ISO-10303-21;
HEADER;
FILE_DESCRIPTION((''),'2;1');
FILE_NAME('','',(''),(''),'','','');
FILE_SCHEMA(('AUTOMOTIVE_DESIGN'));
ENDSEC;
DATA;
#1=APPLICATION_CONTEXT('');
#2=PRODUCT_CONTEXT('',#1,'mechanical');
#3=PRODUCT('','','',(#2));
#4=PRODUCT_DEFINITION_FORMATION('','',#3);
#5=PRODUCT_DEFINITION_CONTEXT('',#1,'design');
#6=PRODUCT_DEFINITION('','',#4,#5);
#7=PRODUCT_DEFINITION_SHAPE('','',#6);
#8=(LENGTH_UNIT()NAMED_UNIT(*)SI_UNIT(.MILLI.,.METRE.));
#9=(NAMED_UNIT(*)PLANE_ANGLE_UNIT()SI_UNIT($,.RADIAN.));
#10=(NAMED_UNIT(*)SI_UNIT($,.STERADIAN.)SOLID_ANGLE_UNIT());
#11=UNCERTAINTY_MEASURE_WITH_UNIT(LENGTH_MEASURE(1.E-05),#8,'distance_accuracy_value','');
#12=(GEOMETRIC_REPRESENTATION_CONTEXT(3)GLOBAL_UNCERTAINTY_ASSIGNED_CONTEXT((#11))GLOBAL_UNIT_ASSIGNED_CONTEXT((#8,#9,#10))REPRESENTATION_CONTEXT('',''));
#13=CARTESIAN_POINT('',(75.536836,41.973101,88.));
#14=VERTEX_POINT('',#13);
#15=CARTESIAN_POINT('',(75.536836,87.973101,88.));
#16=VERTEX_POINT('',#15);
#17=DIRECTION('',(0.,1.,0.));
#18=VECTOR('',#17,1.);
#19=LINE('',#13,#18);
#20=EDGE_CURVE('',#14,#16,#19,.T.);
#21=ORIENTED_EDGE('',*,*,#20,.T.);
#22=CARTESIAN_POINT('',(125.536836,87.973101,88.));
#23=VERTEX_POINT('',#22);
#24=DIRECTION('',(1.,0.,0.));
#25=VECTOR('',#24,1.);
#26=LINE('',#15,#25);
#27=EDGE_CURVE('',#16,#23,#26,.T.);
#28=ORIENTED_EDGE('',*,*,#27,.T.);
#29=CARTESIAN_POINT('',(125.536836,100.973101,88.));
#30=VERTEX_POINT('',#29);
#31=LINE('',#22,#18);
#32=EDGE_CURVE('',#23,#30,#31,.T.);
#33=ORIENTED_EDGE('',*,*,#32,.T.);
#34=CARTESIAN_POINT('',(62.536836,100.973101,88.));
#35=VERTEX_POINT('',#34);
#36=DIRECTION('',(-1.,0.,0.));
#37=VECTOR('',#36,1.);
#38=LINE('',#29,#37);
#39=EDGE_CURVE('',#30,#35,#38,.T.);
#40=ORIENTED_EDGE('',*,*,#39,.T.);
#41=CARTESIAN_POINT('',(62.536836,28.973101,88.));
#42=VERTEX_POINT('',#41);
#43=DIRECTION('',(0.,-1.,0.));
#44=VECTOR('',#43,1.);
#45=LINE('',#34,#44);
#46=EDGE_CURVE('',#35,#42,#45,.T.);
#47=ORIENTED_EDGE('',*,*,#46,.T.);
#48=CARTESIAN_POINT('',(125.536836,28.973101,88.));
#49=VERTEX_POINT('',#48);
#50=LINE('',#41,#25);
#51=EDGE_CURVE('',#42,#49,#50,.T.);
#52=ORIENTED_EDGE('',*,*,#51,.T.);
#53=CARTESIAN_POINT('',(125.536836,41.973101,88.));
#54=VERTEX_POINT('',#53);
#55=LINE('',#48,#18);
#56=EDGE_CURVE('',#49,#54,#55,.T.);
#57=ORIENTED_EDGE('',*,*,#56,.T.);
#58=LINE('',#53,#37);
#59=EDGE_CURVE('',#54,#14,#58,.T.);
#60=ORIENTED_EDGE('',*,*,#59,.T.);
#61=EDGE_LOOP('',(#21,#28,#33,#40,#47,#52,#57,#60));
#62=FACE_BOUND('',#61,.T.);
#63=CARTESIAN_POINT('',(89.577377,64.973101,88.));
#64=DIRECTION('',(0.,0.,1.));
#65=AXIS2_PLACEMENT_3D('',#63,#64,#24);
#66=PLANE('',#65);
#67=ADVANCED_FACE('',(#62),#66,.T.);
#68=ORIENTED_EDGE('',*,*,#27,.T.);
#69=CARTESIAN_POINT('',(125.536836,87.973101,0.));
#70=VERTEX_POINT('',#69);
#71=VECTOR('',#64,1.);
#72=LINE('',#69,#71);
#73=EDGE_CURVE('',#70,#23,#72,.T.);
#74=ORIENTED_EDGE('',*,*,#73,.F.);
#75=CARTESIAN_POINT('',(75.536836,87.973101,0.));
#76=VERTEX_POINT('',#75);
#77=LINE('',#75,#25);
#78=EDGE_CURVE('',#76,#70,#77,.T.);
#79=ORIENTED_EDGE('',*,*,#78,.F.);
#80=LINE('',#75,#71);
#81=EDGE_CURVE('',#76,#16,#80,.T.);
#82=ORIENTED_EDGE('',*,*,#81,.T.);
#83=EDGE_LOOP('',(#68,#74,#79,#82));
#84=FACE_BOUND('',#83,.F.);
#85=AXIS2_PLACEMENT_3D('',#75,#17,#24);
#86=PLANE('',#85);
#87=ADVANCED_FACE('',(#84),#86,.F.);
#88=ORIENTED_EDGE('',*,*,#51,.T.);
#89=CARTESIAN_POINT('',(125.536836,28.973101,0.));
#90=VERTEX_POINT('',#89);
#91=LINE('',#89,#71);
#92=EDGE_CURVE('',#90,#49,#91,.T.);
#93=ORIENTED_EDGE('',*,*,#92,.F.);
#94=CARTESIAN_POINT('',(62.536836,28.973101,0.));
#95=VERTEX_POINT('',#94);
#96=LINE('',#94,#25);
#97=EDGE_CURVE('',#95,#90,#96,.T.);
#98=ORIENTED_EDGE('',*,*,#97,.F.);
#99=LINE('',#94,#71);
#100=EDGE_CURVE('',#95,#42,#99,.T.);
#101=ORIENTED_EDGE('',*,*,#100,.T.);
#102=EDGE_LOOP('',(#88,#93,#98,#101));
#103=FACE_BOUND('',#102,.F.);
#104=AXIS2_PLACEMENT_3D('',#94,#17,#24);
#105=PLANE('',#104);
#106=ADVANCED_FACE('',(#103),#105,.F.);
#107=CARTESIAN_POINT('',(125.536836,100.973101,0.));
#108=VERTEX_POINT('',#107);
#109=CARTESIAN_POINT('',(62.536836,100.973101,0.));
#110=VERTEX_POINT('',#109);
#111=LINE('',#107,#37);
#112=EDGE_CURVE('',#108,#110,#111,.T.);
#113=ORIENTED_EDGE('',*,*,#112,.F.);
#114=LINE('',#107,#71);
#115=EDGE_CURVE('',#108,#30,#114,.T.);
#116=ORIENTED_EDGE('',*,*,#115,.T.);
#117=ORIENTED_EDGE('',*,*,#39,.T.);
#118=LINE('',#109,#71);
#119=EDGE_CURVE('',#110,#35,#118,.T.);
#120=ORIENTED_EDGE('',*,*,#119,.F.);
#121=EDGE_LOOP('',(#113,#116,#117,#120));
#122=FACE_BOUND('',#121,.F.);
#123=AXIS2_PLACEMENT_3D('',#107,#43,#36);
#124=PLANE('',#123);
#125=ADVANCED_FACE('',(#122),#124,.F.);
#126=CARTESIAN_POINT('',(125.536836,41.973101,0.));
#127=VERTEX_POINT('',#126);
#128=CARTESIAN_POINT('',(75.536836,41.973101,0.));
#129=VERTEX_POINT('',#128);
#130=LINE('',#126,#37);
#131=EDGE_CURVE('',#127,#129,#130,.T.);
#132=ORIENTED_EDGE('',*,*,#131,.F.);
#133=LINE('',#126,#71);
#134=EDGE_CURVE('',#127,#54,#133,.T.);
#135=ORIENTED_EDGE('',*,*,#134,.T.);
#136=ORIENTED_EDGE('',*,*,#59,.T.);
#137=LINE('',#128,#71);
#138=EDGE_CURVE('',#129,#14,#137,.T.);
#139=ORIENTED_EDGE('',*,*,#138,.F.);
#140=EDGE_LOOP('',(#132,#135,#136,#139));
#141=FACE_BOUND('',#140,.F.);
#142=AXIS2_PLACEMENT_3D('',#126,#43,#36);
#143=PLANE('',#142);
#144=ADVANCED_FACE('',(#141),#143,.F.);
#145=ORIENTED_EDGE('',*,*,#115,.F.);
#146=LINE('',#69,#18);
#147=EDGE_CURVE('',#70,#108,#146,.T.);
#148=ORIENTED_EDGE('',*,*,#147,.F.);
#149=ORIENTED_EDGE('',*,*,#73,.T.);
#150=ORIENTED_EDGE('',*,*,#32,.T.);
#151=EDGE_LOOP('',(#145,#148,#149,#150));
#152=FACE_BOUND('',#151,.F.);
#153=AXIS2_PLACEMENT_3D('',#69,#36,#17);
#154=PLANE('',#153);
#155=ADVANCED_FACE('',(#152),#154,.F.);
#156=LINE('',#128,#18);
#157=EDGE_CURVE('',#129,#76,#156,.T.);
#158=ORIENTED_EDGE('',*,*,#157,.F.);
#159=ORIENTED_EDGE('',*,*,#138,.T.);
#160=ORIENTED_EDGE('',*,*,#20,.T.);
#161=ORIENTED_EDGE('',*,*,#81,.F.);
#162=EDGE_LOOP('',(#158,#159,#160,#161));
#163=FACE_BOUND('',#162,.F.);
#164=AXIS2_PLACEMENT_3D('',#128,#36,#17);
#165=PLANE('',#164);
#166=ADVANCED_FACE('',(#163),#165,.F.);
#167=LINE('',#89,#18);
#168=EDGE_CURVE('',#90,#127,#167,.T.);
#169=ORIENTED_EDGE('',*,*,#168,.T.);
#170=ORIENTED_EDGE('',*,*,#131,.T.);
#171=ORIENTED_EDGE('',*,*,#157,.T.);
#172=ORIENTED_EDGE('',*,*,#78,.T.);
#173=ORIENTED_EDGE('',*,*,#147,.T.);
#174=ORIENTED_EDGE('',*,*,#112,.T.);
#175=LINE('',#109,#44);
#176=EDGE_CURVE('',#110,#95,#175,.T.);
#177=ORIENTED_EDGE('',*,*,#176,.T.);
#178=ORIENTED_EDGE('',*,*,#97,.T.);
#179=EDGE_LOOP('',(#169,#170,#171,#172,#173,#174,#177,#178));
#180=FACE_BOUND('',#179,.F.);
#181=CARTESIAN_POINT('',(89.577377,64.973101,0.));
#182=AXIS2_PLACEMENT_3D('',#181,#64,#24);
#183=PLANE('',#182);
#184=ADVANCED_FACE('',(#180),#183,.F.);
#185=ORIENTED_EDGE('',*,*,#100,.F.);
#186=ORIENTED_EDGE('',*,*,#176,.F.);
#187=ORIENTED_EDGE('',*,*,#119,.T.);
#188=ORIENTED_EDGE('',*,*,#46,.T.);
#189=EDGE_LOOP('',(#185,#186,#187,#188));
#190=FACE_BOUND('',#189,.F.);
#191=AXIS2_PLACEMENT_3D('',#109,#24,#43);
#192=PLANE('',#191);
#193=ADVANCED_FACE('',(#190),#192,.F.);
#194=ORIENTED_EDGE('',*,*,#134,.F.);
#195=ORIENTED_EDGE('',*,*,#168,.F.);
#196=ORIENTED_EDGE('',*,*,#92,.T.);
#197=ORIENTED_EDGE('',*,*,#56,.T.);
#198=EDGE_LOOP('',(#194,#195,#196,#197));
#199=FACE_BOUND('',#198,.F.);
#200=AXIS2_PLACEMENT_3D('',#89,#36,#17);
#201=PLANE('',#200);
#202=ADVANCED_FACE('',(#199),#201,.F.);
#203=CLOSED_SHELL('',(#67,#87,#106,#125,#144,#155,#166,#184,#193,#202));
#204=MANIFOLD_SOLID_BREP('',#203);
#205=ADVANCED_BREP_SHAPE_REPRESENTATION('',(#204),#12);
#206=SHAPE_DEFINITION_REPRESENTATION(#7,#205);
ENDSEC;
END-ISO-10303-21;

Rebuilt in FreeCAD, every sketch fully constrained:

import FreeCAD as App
import Part
import Sketcher

V = App.Vector

doc = App.newDocument("Part")
body = doc.addObject("PartDesign::Body", "Body")

# Sketch on XY plane
sketch1 = body.newObject("Sketcher::SketchObject", "Sketch")
sketch1.AttachmentSupport = (doc.getObject("XY_Plane"), [""])
sketch1.MapMode = "FlatFace"
sketch1.addGeometry([
    Part.LineSegment(V(63, 101, 0), V(63, 29, 0)),  # 0
    Part.LineSegment(V(63, 29, 0), V(126, 29, 0)),  # 1
    Part.LineSegment(V(126, 29, 0), V(126, 42, 0)),  # 2
    Part.LineSegment(V(126, 42, 0), V(76, 42, 0)),  # 3
    Part.LineSegment(V(76, 42, 0), V(76, 88, 0)),  # 4
    Part.LineSegment(V(76, 88, 0), V(126, 88, 0)),  # 5
    Part.LineSegment(V(126, 88, 0), V(126, 101, 0)),  # 6
    Part.LineSegment(V(126, 101, 0), V(63, 101, 0)),  # 7
], False)
sketch1.addConstraint([
    Sketcher.Constraint("Coincident", 0, 2, 1, 1),
    Sketcher.Constraint("Coincident", 1, 2, 2, 1),
    Sketcher.Constraint("Coincident", 2, 2, 3, 1),
    Sketcher.Constraint("Coincident", 3, 2, 4, 1),
    Sketcher.Constraint("Coincident", 4, 2, 5, 1),
    Sketcher.Constraint("Coincident", 5, 2, 6, 1),
    Sketcher.Constraint("Coincident", 6, 2, 7, 1),
    Sketcher.Constraint("Coincident", 7, 2, 0, 1),
    Sketcher.Constraint("Vertical", 0),
    Sketcher.Constraint("Horizontal", 1),
    Sketcher.Constraint("Vertical", 2),
    Sketcher.Constraint("Horizontal", 3),
    Sketcher.Constraint("Vertical", 4),
    Sketcher.Constraint("Horizontal", 5),
    Sketcher.Constraint("Vertical", 6),
    Sketcher.Constraint("Horizontal", 7),
    Sketcher.Constraint("Vertical", 2, 2, 5, 2),
    Sketcher.Constraint("Equal", 2, 6),
    Sketcher.Constraint("DistanceX", 1, 1, 1, 2, 63.0),
    Sketcher.Constraint("DistanceX", 3, 2, 3, 1, 50.0),
    Sketcher.Constraint("DistanceY", 0, 2, 0, 1, 72.0),
    Sketcher.Constraint("DistanceY", 2, 1, 2, 2, 13.0),
    Sketcher.Constraint("DistanceY", -1, 1, 0, 2, 28.973101),
    Sketcher.Constraint("DistanceX", -1, 1, 0, 2, 62.536836),
])
pad1 = body.newObject("PartDesign::Pad", "Pad")
pad1.Profile = sketch1
pad1.Length = 88

doc.recompute()
